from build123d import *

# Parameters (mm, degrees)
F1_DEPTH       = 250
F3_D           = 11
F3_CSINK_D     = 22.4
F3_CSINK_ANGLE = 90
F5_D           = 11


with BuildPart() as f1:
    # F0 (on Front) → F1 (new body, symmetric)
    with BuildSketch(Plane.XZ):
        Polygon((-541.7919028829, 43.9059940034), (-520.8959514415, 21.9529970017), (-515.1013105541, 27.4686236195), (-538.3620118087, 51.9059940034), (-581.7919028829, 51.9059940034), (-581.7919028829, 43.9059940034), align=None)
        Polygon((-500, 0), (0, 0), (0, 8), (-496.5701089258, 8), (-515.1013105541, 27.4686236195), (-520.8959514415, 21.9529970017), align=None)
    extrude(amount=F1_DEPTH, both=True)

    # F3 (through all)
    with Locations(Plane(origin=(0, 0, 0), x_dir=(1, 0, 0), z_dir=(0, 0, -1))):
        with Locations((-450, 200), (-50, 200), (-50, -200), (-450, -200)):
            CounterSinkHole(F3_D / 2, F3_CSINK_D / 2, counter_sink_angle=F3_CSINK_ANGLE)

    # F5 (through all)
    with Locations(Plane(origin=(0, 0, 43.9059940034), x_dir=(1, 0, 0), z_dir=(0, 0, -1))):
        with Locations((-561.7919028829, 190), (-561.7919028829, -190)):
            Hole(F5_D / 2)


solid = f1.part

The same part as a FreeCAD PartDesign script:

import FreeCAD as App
import Part
import Sketcher


def add_polygon(sketch, points):
    """Adds a closed chain of lines whose ends are joined by coincident constraints."""
    first, n = sketch.GeometryCount, len(points)
    for a, b in zip(points, points[1:] + points[:1]):
        sketch.addGeometry(Part.LineSegment(App.Vector(*a, 0), App.Vector(*b, 0)), False)
    for i in range(n):
        sketch.addConstraint(Sketcher.Constraint("Coincident", first + i, 2, first + (i + 1) % n, 1))

doc = App.newDocument("Part")
body = doc.addObject("PartDesign::Body", "Body")

sketch1 = doc.addObject("Sketcher::SketchObject", "Sketch")
body.addObject(sketch1)
sketch1.AttachmentSupport = (doc.XZ_Plane, [""])
sketch1.MapMode = "FlatFace"
add_polygon(sketch1, [(-542, 44), (-521, 22), (-500, 0), (0, 0), (0, 8), (-497, 8), (-515, 27), (-538, 52), (-582, 52), (-582, 44)])
sketch1.addConstraint([
    Sketcher.Constraint("Horizontal", 2),
    Sketcher.Constraint("Vertical", 3),
    Sketcher.Constraint("Horizontal", 4),
    Sketcher.Constraint("Horizontal", 7),
    Sketcher.Constraint("Vertical", 8),
    Sketcher.Constraint("Horizontal", 9),
    Sketcher.Constraint("Coincident", 2, 2, -1, 1),
    Sketcher.Constraint("Parallel", 0, 1),
    Sketcher.Constraint("Parallel", 1, 5),
    Sketcher.Constraint("Parallel", 5, 6),
    Sketcher.Constraint("Equal", 3, 8),
    Sketcher.Constraint("Equal", 0, 1),
    Sketcher.Constraint("DistanceX", 2, 1, 2, 2, 500.0),
    Sketcher.Constraint("DistanceX", 9, 1, 9, 2, 40.0),
    Sketcher.Constraint("DistanceY", 3, 1, 3, 2, 8.0),
    Sketcher.Constraint("Distance", 0, 30.308),
    Sketcher.Constraint("DistanceX", 4, 2, 4, 1, 496.570109),
    Sketcher.Constraint("DistanceX", 5, 2, 4, 2, 18.531202),
    Sketcher.Constraint("DistanceX", 6, 2, 5, 2, 23.260701),
])
pad1 = doc.addObject("PartDesign::Pad", "Pad")
body.addObject(pad1)
pad1.Profile = sketch1
pad1.Length = 500
pad1.Midplane = True

sketch2 = doc.addObject("Sketcher::SketchObject", "Sketch001")
body.addObject(sketch2)
sketch2.AttachmentSupport = (doc.XY_Plane, [""])
sketch2.MapMode = "FlatFace"
sketch2.addGeometry([
    Part.Circle(App.Vector(-450, -200, 0), App.Vector(0, 0, 1), 6),
    Part.Circle(App.Vector(-50, -200, 0), App.Vector(0, 0, 1), 6),
    Part.Circle(App.Vector(-50, 200, 0), App.Vector(0, 0, 1), 6),
    Part.Circle(App.Vector(-450, 200, 0), App.Vector(0, 0, 1), 6),
], False)
sketch2.addConstraint([
    Sketcher.Constraint("Equal", 0, 1),
    Sketcher.Constraint("Equal", 1, 2),
    Sketcher.Constraint("Equal", 2, 3),
    Sketcher.Constraint("Symmetric", 1, 3, 2, 3, -1),
    Sketcher.Constraint("Symmetric", 0, 3, 3, 3, -1),
    Sketcher.Constraint("Horizontal", 0, 3, 1, 3),
    Sketcher.Constraint("Diameter", 0, 11.0),
    Sketcher.Constraint("DistanceX", 0, 3, -1, 1, 450.0),
    Sketcher.Constraint("DistanceY", 0, 3, -1, 1, 200.0),
    Sketcher.Constraint("DistanceX", 1, 3, -1, 1, 50.0),
])
doc.recompute()
hole = doc.addObject("PartDesign::Hole", "Hole")
body.addObject(hole)
hole.Profile = sketch2
hole.ThreadType = "None"
hole.Diameter = 11
hole.DepthType = "ThroughAll"
hole.HoleCutType = "Countersink"
hole.HoleCutDiameter = 22.4
hole.HoleCutCountersinkAngle = 90
hole.Reversed = True

sketch3 = doc.addObject("Sketcher::SketchObject", "Sketch002")
body.addObject(sketch3)
sketch3.AttachmentSupport = (doc.XY_Plane, [""])
sketch3.MapMode = "FlatFace"
sketch3.AttachmentOffset = App.Placement(App.Vector(0, 0, 43.905994), App.Rotation())
sketch3.addGeometry([
    Part.Circle(App.Vector(-562, -190, 0), App.Vector(0, 0, 1), 6),
    Part.Circle(App.Vector(-562, 190, 0), App.Vector(0, 0, 1), 6),
], False)
sketch3.addConstraint([
    Sketcher.Constraint("Equal", 0, 1),
    Sketcher.Constraint("Symmetric", 0, 3, 1, 3, -1),
    Sketcher.Constraint("Diameter", 0, 11.0),
    Sketcher.Constraint("DistanceY", 0, 3, -1, 1, 190.0),
    Sketcher.Constraint("DistanceX", 0, 3, -1, 1, 561.791903),
])
doc.recompute()
hole2 = doc.addObject("PartDesign::Hole", "Hole001")
body.addObject(hole2)
hole2.Profile = sketch3
hole2.ThreadType = "None"
hole2.Diameter = 11
hole2.DepthType = "ThroughAll"
hole2.Reversed = True

doc.recompute()
